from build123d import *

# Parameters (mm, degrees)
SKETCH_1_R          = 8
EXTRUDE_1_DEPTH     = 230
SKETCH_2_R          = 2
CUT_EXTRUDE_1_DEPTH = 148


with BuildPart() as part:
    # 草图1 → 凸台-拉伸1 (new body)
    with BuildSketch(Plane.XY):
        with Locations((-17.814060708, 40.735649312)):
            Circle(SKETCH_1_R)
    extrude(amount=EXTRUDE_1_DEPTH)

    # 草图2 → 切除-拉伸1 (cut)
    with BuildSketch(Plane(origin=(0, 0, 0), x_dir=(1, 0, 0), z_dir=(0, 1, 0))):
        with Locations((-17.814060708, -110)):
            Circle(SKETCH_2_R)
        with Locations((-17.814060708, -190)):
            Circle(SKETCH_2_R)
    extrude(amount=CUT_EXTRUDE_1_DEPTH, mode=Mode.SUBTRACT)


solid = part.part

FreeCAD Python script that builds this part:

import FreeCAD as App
import Part
import Sketcher
from FreeCAD import Vector

doc = App.newDocument("Part")
body = doc.addObject("PartDesign::Body", "Body")

# Sketch on XY plane
sketch1 = body.newObject("Sketcher::SketchObject", "Sketch")
sketch1.AttachmentSupport = (doc.getObject("XY_Plane"), [""])
sketch1.MapMode = "FlatFace"
sketch1.addGeometry(Part.Circle(Vector(-18, 41, 0), Vector(0, 0, 1), 8), False)
sketch1.addConstraint(Sketcher.Constraint("Diameter", 0, 16.0))
sketch1.addConstraint(Sketcher.Constraint("DistanceX", 0, 3, -1, 1, 17.814061))
sketch1.addConstraint(Sketcher.Constraint("DistanceY", -1, 1, 0, 3, 40.735649))
pad1 = body.newObject("PartDesign::Pad", "Pad")
pad1.Profile = sketch1
pad1.Length = 230

# Sketch on XZ plane
sketch2 = body.newObject("Sketcher::SketchObject", "Sketch001")
sketch2.AttachmentSupport = (doc.getObject("XZ_Plane"), [""])
sketch2.MapMode = "FlatFace"
sketch2.addGeometry(Part.Circle(Vector(-17.8, 110, 0), Vector(0, 0, 1), 2), False)
sketch2.addGeometry(Part.Circle(Vector(-17.8, 190, 0), Vector(0, 0, 1), 2), False)
sketch2.addConstraint(Sketcher.Constraint("Equal", 0, 1))
sketch2.addConstraint(Sketcher.Constraint("Vertical", 0, 3, 1, 3))
sketch2.addConstraint(Sketcher.Constraint("Diameter", 0, 4.0))
sketch2.addConstraint(Sketcher.Constraint("DistanceY", -1, 1, 0, 3, 110.0))
sketch2.addConstraint(Sketcher.Constraint("DistanceY", -1, 1, 1, 3, 190.0))
sketch2.addConstraint(Sketcher.Constraint("DistanceX", 0, 3, -1, 1, 17.814061))
pocket1 = body.newObject("PartDesign::Pocket", "Pocket")
pocket1.Profile = sketch2
pocket1.Length = 148

doc.recompute()
